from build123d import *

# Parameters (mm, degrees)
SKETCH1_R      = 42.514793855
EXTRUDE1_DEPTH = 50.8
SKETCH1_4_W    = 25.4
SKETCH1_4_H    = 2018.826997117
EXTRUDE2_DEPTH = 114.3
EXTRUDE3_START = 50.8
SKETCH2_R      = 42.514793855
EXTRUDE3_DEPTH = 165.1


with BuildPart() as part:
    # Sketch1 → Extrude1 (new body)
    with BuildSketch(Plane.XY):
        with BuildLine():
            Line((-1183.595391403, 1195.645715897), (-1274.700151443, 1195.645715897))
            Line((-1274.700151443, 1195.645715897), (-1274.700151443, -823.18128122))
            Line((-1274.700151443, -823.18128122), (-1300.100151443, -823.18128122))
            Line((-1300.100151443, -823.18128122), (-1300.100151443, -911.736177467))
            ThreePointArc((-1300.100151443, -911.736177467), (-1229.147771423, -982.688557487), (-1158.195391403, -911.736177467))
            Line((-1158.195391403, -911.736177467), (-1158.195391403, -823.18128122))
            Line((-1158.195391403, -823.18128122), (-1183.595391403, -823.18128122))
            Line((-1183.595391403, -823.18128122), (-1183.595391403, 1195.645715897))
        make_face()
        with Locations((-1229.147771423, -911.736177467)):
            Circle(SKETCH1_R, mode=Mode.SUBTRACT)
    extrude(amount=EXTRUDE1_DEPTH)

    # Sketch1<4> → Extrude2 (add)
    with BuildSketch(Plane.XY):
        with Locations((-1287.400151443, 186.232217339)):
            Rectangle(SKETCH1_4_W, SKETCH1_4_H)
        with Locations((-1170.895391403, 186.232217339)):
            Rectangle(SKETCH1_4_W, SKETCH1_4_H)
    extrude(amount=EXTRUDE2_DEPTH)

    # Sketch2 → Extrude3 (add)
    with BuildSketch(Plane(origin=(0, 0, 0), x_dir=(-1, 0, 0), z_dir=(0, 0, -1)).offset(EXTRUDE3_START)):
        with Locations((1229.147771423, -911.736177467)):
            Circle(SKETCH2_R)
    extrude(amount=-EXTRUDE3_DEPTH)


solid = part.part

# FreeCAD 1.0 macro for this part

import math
import FreeCAD as App
import Part
import Sketcher
Q = App.Units.Quantity

doc = App.newDocument("Part")
params = doc.addObject("Spreadsheet::Sheet", "Params")
for row, (alias, value) in enumerate([
    ("sketch1_width", "1 in"),
    ("pad1_length", "2 in"),
    ("sketch2_width", "1 in"),
    ("pad2_length", "4.5 in"),
    ("pad3_length", "6.5 in"),
], start=1):
    params.set(f"A{row}", alias)
    params.set(f"B{row}", "=" + value)
    params.setAlias(f"B{row}", alias)

body = doc.addObject("PartDesign::Body", "Body")

# Sketch on XY plane
sketch1 = doc.addObject("Sketcher::SketchObject", "Sketch")
body.addObject(sketch1)
sketch1.AttachmentSupport = (doc.XY_Plane, [""])
sketch1.MapMode = "FlatFace"
sketch1.addGeometry([
    Part.LineSegment(App.Vector(-1183.595391, 1195.645716, 0), App.Vector(-1274.700151, 1195.645716, 0)),  # 0
    Part.LineSegment(App.Vector(-1274.700151, 1195.645716, 0), App.Vector(-1274.700151, -823.181281, 0)),  # 1
    Part.LineSegment(App.Vector(-1274.700151, -823.181281, 0), App.Vector(-1300.100151, -823.181281, 0)),  # 2
    Part.LineSegment(App.Vector(-1300.100151, -823.181281, 0), App.Vector(-1300.100151, -911.736177, 0)),  # 3
    Part.ArcOfCircle(Part.Circle(App.Vector(-1229.147771, -911.736177, 0), App.Vector(0, 0, 1), 70.95238), math.radians(180), math.radians(360)),  # 4
    Part.LineSegment(App.Vector(-1158.195391, -911.736177, 0), App.Vector(-1158.195391, -823.181281, 0)),  # 5
    Part.LineSegment(App.Vector(-1158.195391, -823.181281, 0), App.Vector(-1183.595391, -823.181281, 0)),  # 6
    Part.LineSegment(App.Vector(-1183.595391, -823.181281, 0), App.Vector(-1183.595391, 1195.645716, 0)),  # 7
    Part.Circle(App.Vector(-1229.147771, -911.736177, 0), App.Vector(0, 0, 1), 42.514794),  # 8
], False)
sketch1.addConstraint([
    Sketcher.Constraint("Coincident", 0, 2, 1, 1),
    Sketcher.Constraint("Coincident", 1, 2, 2, 1),
    Sketcher.Constraint("Coincident", 2, 2, 3, 1),
    Sketcher.Constraint("Tangent", 3, 2, 4, 1),
    Sketcher.Constraint("Tangent", 4, 2, 5, 1),
    Sketcher.Constraint("Coincident", 5, 2, 6, 1),
    Sketcher.Constraint("Coincident", 6, 2, 7, 1),
    Sketcher.Constraint("Coincident", 7, 2, 0, 1),
    Sketcher.Constraint("Horizontal", 0),
    Sketcher.Constraint("Vertical", 1),
    Sketcher.Constraint("Horizontal", 2),
    Sketcher.Constraint("Vertical", 3),
    Sketcher.Constraint("Vertical", 5),
    Sketcher.Constraint("Horizontal", 6),
    Sketcher.Constraint("Vertical", 7),
    Sketcher.Constraint("Coincident", 8, 3, 4, 3),
    Sketcher.Constraint("Horizontal", 2, 2, 5, 2),
    Sketcher.Constraint("Equal", 2, 6),
    Sketcher.Constraint("DistanceX", 2, 2, 2, 1, Q("1 in")),
    Sketcher.Constraint("Radius", 4, 70.95238),
    Sketcher.Constraint("Diameter", 8, 85.029588),
    Sketcher.Constraint("DistanceY", 1, 2, 1, 1, 2018.826997),
    Sketcher.Constraint("DistanceY", 3, 2, 3, 1, 88.554896),
    Sketcher.Constraint("DistanceX", 4, 3, -1, 1, 1229.147771),
    Sketcher.Constraint("DistanceY", 1, 2, -1, 1, 823.181281),
])
sketch1.setExpression("Constraints[18]", "Params.sketch1_width")
pad1 = doc.addObject("PartDesign::Pad", "Pad")
body.addObject(pad1)
pad1.Profile = sketch1
pad1.setExpression("Length", "Params.pad1_length")

# Sketch on XY plane
sketch2 = doc.addObject("Sketcher::SketchObject", "Sketch001")
body.addObject(sketch2)
sketch2.AttachmentSupport = (doc.XY_Plane, [""])
sketch2.MapMode = "FlatFace"
sketch2.addGeometry([
    Part.LineSegment(App.Vector(-1300.100151, 1195.645716, 0), App.Vector(-1300.100151, -823.181281, 0)),  # 0
    Part.LineSegment(App.Vector(-1300.100151, -823.181281, 0), App.Vector(-1274.700151, -823.181281, 0)),  # 1
    Part.LineSegment(App.Vector(-1274.700151, -823.181281, 0), App.Vector(-1274.700151, 1195.645716, 0)),  # 2
    Part.LineSegment(App.Vector(-1274.700151, 1195.645716, 0), App.Vector(-1300.100151, 1195.645716, 0)),  # 3
    Part.LineSegment(App.Vector(-1183.595391, 1195.645716, 0), App.Vector(-1183.595391, -823.181281, 0)),  # 4
    Part.LineSegment(App.Vector(-1183.595391, -823.181281, 0), App.Vector(-1158.195391, -823.181281, 0)),  # 5
    Part.LineSegment(App.Vector(-1158.195391, -823.181281, 0), App.Vector(-1158.195391, 1195.645716, 0)),  # 6
    Part.LineSegment(App.Vector(-1158.195391, 1195.645716, 0), App.Vector(-1183.595391, 1195.645716, 0)),  # 7
], False)
sketch2.addConstraint([
    Sketcher.Constraint("Coincident", 0, 2, 1, 1),
    Sketcher.Constraint("Coincident", 1, 2, 2, 1),
    Sketcher.Constraint("Coincident", 2, 2, 3, 1),
    Sketcher.Constraint("Coincident", 3, 2, 0, 1),
    Sketcher.Constraint("Coincident", 4, 2, 5, 1),
    Sketcher.Constraint("Coincident", 5, 2, 6, 1),
    Sketcher.Constraint("Coincident", 6, 2, 7, 1),
    Sketcher.Constraint("Coincident", 7, 2, 4, 1),
    Sketcher.Constraint("Vertical", 0),
    Sketcher.Constraint("Horizontal", 1),
    Sketcher.Constraint("Vertical", 2),
    Sketcher.Constraint("Horizontal", 3),
    Sketcher.Constraint("Vertical", 4),
    Sketcher.Constraint("Horizontal", 5),
    Sketcher.Constraint("Vertical", 6),
    Sketcher.Constraint("Horizontal", 7),
    Sketcher.Constraint("Horizontal", 1, 2, 4, 2),
    Sketcher.Constraint("Horizontal", 3, 2, 6, 2),
    Sketcher.Constraint("Equal", 3, 5),
    Sketcher.Constraint("DistanceX", 1, 1, 1, 2, Q("1 in")),
    Sketcher.Constraint("DistanceY", 0, 2, 0, 1, 2018.826997),
    Sketcher.Constraint("DistanceX", 0, 2, -1, 1, 1300.100151),
    Sketcher.Constraint("DistanceY", 0, 2, -1, 1, 823.181281),
    Sketcher.Constraint("DistanceX", 4, 2, -1, 1, 1183.595391),
])
sketch2.setExpression("Constraints[19]", "Params.sketch2_width")
pad2 = doc.addObject("PartDesign::Pad", "Pad001")
body.addObject(pad2)
pad2.Profile = sketch2
pad2.setExpression("Length", "Params.pad2_length")

# Sketch on XY plane
sketch3 = doc.addObject("Sketcher::SketchObject", "Sketch002")
body.addObject(sketch3)
sketch3.AttachmentSupport = (doc.XY_Plane, [""])
sketch3.MapMode = "FlatFace"
sketch3.AttachmentOffset = App.Placement(App.Vector(0, 0, -2 * 25.4), App.Rotation())
sketch3.addGeometry(Part.Circle(App.Vector(-1229.147771, -911.736177, 0), App.Vector(0, 0, 1), 42.514794), False)
sketch3.addConstraint([
    Sketcher.Constraint("Diameter", 0, 85.029588),
    Sketcher.Constraint("DistanceX", 0, 3, -1, 1, 1229.147771),
    Sketcher.Constraint("DistanceY", 0, 3, -1, 1, 911.736177),
])
pad3 = doc.addObject("PartDesign::Pad", "Pad002")
body.addObject(pad3)
pad3.Profile = sketch3
pad3.setExpression("Length", "Params.pad3_length")

doc.recompute()
